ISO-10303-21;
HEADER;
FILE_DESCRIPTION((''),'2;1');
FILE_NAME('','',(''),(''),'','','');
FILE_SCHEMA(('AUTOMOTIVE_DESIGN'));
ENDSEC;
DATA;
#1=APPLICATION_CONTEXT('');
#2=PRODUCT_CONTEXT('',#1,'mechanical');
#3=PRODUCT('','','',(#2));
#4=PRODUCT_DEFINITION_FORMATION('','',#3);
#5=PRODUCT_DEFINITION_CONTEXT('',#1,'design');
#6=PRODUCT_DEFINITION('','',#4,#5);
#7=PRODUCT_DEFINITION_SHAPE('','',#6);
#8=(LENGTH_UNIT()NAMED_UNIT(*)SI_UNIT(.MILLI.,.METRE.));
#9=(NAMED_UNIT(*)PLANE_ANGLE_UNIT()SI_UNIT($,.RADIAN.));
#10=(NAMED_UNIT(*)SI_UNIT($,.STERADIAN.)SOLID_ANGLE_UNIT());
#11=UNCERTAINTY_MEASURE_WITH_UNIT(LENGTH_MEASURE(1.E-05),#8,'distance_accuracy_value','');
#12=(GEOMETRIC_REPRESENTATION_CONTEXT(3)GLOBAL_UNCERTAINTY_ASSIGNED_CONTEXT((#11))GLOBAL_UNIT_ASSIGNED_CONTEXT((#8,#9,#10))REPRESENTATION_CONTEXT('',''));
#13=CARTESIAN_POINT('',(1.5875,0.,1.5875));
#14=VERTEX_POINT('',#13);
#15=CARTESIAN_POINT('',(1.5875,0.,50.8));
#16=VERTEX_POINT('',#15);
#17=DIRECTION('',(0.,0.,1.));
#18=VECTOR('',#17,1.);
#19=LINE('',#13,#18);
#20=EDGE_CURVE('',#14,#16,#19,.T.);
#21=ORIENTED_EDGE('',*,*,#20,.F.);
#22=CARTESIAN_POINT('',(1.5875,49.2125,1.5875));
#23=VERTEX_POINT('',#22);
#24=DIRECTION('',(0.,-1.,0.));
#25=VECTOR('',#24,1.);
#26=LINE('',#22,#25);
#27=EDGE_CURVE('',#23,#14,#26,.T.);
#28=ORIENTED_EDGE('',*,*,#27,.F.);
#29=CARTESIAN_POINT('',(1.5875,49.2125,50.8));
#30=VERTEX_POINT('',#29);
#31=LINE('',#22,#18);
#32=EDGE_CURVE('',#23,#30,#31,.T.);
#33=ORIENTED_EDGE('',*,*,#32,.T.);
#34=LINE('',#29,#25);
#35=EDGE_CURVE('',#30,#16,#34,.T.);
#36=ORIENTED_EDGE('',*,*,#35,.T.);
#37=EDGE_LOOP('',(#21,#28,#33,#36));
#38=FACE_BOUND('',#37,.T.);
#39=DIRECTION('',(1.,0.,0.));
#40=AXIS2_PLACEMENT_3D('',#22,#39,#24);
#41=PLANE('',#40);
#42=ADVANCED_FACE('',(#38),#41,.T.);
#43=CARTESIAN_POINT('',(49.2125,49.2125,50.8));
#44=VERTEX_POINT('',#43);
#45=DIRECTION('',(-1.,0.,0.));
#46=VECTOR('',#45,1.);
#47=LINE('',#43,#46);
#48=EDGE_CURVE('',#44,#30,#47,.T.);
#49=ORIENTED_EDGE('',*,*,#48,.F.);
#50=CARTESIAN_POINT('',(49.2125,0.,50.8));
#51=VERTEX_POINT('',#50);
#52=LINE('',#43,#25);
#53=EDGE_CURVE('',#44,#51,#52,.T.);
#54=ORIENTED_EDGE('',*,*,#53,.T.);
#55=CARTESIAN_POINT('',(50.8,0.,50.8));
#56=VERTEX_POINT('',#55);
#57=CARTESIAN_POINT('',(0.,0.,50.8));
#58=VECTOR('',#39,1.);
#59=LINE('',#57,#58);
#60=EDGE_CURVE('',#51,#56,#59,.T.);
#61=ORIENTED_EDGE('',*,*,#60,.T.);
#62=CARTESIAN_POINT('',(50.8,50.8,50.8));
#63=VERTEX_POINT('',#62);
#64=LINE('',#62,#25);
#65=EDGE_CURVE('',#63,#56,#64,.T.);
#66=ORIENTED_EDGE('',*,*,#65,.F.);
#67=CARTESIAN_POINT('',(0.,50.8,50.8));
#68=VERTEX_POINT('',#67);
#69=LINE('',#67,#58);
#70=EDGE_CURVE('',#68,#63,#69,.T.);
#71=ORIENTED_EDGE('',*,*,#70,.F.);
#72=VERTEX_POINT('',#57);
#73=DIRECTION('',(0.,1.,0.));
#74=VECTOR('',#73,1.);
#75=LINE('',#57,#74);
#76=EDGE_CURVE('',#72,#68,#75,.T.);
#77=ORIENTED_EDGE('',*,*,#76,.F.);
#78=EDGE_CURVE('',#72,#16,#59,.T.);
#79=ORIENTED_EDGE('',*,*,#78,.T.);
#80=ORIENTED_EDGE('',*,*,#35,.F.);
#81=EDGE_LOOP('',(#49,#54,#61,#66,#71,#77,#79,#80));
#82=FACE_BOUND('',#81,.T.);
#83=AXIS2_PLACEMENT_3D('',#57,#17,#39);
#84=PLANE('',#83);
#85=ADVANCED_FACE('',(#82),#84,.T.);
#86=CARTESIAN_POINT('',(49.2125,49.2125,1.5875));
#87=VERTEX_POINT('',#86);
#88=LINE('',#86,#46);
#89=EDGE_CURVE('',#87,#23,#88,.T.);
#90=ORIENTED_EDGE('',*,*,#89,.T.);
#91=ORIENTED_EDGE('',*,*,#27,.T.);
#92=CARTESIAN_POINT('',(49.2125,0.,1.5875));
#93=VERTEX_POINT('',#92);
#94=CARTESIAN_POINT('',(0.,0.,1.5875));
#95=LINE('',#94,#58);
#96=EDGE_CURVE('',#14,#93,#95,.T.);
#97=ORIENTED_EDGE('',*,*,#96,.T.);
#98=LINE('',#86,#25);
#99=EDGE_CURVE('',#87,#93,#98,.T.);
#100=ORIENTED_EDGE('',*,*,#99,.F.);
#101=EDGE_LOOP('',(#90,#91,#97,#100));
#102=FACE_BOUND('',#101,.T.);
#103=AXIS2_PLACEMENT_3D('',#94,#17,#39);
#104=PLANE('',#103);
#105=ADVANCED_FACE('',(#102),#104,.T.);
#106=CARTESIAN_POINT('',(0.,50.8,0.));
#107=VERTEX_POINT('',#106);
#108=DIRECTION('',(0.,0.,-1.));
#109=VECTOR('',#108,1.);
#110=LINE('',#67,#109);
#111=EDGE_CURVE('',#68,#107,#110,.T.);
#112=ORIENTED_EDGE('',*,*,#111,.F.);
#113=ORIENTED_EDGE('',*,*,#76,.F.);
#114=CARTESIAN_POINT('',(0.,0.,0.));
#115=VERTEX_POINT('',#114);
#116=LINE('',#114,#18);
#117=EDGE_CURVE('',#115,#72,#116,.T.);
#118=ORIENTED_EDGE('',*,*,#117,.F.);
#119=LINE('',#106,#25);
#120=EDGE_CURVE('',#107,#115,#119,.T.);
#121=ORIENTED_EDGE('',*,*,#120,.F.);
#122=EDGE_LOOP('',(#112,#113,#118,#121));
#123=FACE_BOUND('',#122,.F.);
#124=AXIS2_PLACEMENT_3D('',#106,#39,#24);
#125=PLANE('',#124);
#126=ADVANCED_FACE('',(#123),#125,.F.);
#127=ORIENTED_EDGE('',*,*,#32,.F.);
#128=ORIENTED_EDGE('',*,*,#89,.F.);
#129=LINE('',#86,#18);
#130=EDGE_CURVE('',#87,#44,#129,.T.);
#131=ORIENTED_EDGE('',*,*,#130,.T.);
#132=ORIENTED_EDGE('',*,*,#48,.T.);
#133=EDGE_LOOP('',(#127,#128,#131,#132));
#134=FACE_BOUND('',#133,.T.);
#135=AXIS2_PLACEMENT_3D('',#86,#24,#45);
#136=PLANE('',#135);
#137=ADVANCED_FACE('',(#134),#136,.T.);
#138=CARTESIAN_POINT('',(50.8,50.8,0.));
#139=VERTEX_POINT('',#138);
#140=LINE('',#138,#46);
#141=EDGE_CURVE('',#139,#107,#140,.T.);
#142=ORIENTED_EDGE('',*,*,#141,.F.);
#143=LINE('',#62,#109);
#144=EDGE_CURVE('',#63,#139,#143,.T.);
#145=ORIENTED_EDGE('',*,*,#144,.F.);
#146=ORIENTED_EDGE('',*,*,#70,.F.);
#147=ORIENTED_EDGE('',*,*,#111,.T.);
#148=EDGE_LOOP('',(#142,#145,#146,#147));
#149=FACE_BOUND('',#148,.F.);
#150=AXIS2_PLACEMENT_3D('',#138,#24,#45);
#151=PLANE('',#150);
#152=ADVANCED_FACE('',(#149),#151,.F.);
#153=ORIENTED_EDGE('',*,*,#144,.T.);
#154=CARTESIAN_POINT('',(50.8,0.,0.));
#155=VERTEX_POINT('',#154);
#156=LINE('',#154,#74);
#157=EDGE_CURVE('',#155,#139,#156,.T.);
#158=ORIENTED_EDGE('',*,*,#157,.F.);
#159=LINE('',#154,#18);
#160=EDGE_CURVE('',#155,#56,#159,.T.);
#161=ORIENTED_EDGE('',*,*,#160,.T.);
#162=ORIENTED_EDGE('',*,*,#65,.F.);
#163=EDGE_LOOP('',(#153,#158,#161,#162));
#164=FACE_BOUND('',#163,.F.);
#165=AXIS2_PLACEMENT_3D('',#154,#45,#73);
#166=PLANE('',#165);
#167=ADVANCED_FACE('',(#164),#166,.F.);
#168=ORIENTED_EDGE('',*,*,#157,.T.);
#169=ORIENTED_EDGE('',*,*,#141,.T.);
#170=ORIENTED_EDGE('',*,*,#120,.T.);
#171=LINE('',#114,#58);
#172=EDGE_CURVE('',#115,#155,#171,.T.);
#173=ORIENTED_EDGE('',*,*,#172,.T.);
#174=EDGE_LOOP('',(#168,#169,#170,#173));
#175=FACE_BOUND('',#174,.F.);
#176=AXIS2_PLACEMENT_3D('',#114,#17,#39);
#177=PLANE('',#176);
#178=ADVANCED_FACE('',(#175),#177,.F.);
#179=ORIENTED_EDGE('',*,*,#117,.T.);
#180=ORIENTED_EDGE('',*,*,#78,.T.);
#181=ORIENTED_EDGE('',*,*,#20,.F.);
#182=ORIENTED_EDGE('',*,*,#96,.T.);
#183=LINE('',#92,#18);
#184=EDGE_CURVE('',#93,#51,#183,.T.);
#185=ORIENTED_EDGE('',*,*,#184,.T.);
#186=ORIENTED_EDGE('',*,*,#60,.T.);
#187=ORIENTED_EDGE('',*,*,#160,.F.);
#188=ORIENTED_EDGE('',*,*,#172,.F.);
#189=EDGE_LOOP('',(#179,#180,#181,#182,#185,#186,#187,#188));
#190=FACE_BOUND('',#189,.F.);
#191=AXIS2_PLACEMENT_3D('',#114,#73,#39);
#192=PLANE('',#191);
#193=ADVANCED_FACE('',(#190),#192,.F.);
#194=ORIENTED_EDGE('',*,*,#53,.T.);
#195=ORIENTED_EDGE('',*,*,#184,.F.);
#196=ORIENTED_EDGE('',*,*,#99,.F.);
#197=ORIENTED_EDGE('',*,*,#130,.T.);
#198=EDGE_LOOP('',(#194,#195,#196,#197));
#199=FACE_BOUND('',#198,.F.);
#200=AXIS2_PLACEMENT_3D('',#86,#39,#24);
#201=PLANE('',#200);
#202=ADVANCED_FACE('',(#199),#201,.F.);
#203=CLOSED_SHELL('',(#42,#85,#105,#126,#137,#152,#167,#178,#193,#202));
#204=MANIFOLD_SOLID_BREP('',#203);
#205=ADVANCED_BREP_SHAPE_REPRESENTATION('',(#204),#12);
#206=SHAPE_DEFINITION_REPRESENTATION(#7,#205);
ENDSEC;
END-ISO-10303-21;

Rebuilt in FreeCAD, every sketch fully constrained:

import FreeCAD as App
import Part
import Sketcher
from FreeCAD import Vector
Q = App.Units.Quantity


def add_polygon(sketch, points):
    """Adds a closed chain of lines whose ends are joined by coincident constraints."""
    first, n = sketch.GeometryCount, len(points)
    for a, b in zip(points, points[1:] + points[:1]):
        sketch.addGeometry(Part.LineSegment(App.Vector(*a, 0), App.Vector(*b, 0)), False)
    for i in range(n):
        sketch.addConstraint(Sketcher.Constraint("Coincident", first + i, 2, first + (i + 1) % n, 1))

doc = App.newDocument("Part")
params = doc.addObject("Spreadsheet::Sheet", "Params")
for row, (alias, value) in enumerate([
    ("sketch1_width", "2 in"),
    ("pad1_length", "0.0625 in"),
    ("sketch2_width", "2 in"),
    ("sketch2_width2", "0.0625 in"),
    ("pad2_length", "1.9375 in"),
], start=1):
    params.set(f"A{row}", alias)
    params.set(f"B{row}", "=" + value)
    params.setAlias(f"B{row}", alias)

body = doc.addObject("PartDesign::Body", "Body")

# Sketch on XY plane
sketch1 = doc.addObject("Sketcher::SketchObject", "Sketch")
body.addObject(sketch1)
sketch1.AttachmentSupport = (doc.XY_Plane, [""])
sketch1.MapMode = "FlatFace"
add_polygon(sketch1, [(0, 51), (0, 0), (51, 0), (51, 51)])  # lines 0-3
sketch1.addConstraint(Sketcher.Constraint("Vertical", 0))
sketch1.addConstraint(Sketcher.Constraint("Horizontal", 1))
sketch1.addConstraint(Sketcher.Constraint("Vertical", 2))
sketch1.addConstraint(Sketcher.Constraint("Horizontal", 3))
sketch1.addConstraint(Sketcher.Constraint("Coincident", 0, 2, -1, 1))
sketch1.addConstraint(Sketcher.Constraint("Equal", 3, 0))
sketch1.addConstraint(Sketcher.Constraint("DistanceX", 1, 1, 1, 2, Q("2 in")))
sketch1.setExpression("Constraints[10]", "Params.sketch1_width")
pad1 = doc.addObject("PartDesign::Pad", "Pad")
body.addObject(pad1)
pad1.Profile = sketch1
pad1.setExpression("Length", "Params.pad1_length")

# Sketch on XY plane
sketch2 = doc.addObject("Sketcher::SketchObject", "Sketch001")
body.addObject(sketch2)
sketch2.AttachmentSupport = (doc.XY_Plane, [""])
sketch2.MapMode = "FlatFace"
sketch2.AttachmentOffset = App.Placement(Vector(0, 0, 0.0625 * 25.4), App.Rotation())
add_polygon(sketch2, [(0, 50.8), (0, 0), (1.6, 0), (1.6, 49.2), (49.2, 49.2), (49.2, 0), (50.8, 0), (50.8, 50.8)])  # lines 0-7
sketch2.addConstraint(Sketcher.Constraint("Vertical", 0))
sketch2.addConstraint(Sketcher.Constraint("Horizontal", 1))
sketch2.addConstraint(Sketcher.Constraint("Vertical", 2))
sketch2.addConstraint(Sketcher.Constraint("Horizontal", 3))
sketch2.addConstraint(Sketcher.Constraint("Vertical", 4))
sketch2.addConstraint(Sketcher.Constraint("Horizontal", 5))
sketch2.addConstraint(Sketcher.Constraint("Vertical", 6))
sketch2.addConstraint(Sketcher.Constraint("Horizontal", 7))
sketch2.addConstraint(Sketcher.Constraint("Coincident", 0, 2, -1, 1))
sketch2.addConstraint(Sketcher.Constraint("PointOnObject", 4, 2, -1))
sketch2.addConstraint(Sketcher.Constraint("Equal", 1, 5))
sketch2.addConstraint(Sketcher.Constraint("Equal", 7, 0))
sketch2.addConstraint(Sketcher.Constraint("DistanceX", 7, 2, 7, 1, Q("2 in")))
sketch2.addConstraint(Sketcher.Constraint("DistanceX", 1, 1, 1, 2, Q("0.0625 in")))
sketch2.addConstraint(Sketcher.Constraint("DistanceY", 3, 2, 6, 2, Q("0.0625 in")))
sketch2.setExpression("Constraints[20]", "Params.sketch2_width")
sketch2.setExpression("Constraints[21]", "Params.sketch2_width2")
pad2 = doc.addObject("PartDesign::Pad", "Pad001")
body.addObject(pad2)
pad2.Profile = sketch2
pad2.setExpression("Length", "Params.pad2_length")

doc.recompute()
